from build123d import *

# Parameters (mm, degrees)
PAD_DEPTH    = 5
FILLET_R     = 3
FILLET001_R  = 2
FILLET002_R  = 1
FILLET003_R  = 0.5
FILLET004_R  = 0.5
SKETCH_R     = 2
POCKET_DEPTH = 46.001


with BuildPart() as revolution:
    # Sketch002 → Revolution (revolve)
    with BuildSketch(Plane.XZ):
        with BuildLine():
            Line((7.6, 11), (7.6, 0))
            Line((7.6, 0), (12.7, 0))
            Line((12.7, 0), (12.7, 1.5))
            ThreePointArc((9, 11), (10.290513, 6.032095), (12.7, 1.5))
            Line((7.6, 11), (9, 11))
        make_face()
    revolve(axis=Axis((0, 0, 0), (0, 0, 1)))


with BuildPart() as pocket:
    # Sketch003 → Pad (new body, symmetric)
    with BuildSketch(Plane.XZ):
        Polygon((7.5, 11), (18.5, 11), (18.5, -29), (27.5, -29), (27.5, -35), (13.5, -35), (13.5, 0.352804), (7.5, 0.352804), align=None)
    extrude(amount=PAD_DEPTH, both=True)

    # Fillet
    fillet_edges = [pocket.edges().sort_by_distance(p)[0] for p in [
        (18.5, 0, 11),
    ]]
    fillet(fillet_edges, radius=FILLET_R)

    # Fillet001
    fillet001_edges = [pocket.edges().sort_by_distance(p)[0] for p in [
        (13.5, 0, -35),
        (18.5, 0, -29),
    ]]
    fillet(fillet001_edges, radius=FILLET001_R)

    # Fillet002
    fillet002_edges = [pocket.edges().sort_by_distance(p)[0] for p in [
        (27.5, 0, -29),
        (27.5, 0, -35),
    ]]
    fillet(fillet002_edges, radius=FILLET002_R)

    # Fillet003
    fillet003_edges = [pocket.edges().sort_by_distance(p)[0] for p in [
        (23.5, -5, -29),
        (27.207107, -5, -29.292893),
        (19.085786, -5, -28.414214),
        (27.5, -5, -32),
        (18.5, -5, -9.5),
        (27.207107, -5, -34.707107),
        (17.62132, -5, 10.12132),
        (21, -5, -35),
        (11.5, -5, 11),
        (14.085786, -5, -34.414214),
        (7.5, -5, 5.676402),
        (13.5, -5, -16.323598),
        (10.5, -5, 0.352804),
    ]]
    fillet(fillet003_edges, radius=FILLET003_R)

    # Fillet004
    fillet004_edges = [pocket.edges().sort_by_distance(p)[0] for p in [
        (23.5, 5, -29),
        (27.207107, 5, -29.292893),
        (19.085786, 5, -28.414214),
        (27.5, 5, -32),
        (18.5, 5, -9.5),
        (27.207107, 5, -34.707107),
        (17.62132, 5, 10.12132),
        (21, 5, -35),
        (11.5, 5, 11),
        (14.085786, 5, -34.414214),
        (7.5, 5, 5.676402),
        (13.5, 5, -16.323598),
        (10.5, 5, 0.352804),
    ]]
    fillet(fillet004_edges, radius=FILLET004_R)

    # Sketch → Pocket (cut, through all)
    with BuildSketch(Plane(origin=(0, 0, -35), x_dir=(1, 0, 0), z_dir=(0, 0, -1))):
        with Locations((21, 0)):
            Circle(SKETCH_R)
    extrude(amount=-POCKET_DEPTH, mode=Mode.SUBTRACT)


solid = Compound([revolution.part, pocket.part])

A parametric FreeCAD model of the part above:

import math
import FreeCAD as App
import Part
import Sketcher

V = App.Vector
Q = App.Units.Quantity


def edges_at(feature, points):
    """Names of the edges that pass closest to the given points."""
    edges = feature.Shape.Edges
    near = lambda p: min(range(len(edges)), key=lambda i: edges[i].distToShape(Part.Vertex(*p))[0])
    return sorted({f"Edge{near(p) + 1}" for p in points})

doc = App.newDocument("Part")
body = doc.addObject("PartDesign::Body", "Body")

sketch1 = body.newObject("Sketcher::SketchObject", "Sketch")
sketch1.AttachmentSupport = (doc.getObject("XZ_Plane"), [""])
sketch1.MapMode = "FlatFace"
sketch1.addGeometry(Part.LineSegment(V(7.6, 11, 0), V(7.6, 0, 0)), False)
sketch1.addGeometry(Part.LineSegment(V(7.6, 0, 0), V(12.7, 0, 0)), False)
sketch1.addGeometry(Part.LineSegment(V(12.7, 0, 0), V(12.7, 1.5, 0)), False)
sketch1.addGeometry(Part.ArcOfCircle(Part.Circle(V(30.733823, 13.994226, 0), V(0, 0, 1), 21.939108), math.radians(-172.155853), math.radians(-145.284939)), False)
sketch1.addGeometry(Part.LineSegment(V(9, 11, 0), V(7.6, 11, 0)), False)
sketch1.addConstraint(Sketcher.Constraint("Coincident", 0, 2, 1, 1))
sketch1.addConstraint(Sketcher.Constraint("Coincident", 1, 2, 2, 1))
sketch1.addConstraint(Sketcher.Constraint("Coincident", 2, 2, 3, 2))
sketch1.addConstraint(Sketcher.Constraint("Coincident", 3, 1, 4, 1))
sketch1.addConstraint(Sketcher.Constraint("Coincident", 4, 2, 0, 1))
sketch1.addConstraint(Sketcher.Constraint("Vertical", 0))
sketch1.addConstraint(Sketcher.Constraint("Horizontal", 1))
sketch1.addConstraint(Sketcher.Constraint("Vertical", 2))
sketch1.addConstraint(Sketcher.Constraint("Horizontal", 4))
sketch1.addConstraint(Sketcher.Constraint("PointOnObject", 0, 2, -1))
sketch1.addConstraint(Sketcher.Constraint("DistanceY", 0, 2, 0, 1, Q("11 mm")))
sketch1.addConstraint(Sketcher.Constraint("DistanceX", 1, 1, 1, 2, Q("5.1 mm")))
sketch1.addConstraint(Sketcher.Constraint("DistanceX", 4, 2, 4, 1, Q("1.4 mm")))
sketch1.addConstraint(Sketcher.Constraint("DistanceY", 2, 1, 2, 2, Q("1.5 mm")))
sketch1.addConstraint(Sketcher.Constraint("DistanceX", -1, 1, 3, 1, Q("9 mm")))
sketch1.addConstraint(Sketcher.Constraint("Radius", 3, Q("21.939108 mm")))
revolution = body.newObject("PartDesign::Revolution", "Revolution")
revolution.Profile = sketch1
revolution.ReferenceAxis = (sketch1, ["V_Axis"])
revolution.Angle = 360
body2 = doc.addObject("PartDesign::Body", "Body001")

sketch2 = body2.newObject("Sketcher::SketchObject", "Sketch001")
sketch2.AttachmentSupport = (doc.getObject("XZ_Plane001"), [""])
sketch2.MapMode = "FlatFace"
sketch2.addGeometry(Part.LineSegment(V(18.5, 11, 0), V(7.5, 11, 0)), False)
sketch2.addGeometry(Part.LineSegment(V(7.5, 11, 0), V(7.5, 0.352804, 0)), False)
sketch2.addGeometry(Part.LineSegment(V(7.5, 0.352804, 0), V(13.5, 0.352804, 0)), False)
sketch2.addGeometry(Part.LineSegment(V(13.5, 0.352804, 0), V(13.5, -35, 0)), False)
sketch2.addGeometry(Part.LineSegment(V(13.5, -35, 0), V(27.5, -35, 0)), False)
sketch2.addGeometry(Part.LineSegment(V(27.5, -35, 0), V(27.5, -29, 0)), False)
sketch2.addGeometry(Part.LineSegment(V(27.5, -29, 0), V(18.5, -29, 0)), False)
sketch2.addGeometry(Part.LineSegment(V(18.5, -29, 0), V(18.5, 11, 0)), False)
sketch2.addConstraint(Sketcher.Constraint("Coincident", 0, 2, 1, 1))
sketch2.addConstraint(Sketcher.Constraint("Coincident", 1, 2, 2, 1))
sketch2.addConstraint(Sketcher.Constraint("Coincident", 2, 2, 3, 1))
sketch2.addConstraint(Sketcher.Constraint("Coincident", 3, 2, 4, 1))
sketch2.addConstraint(Sketcher.Constraint("Coincident", 4, 2, 5, 1))
sketch2.addConstraint(Sketcher.Constraint("Coincident", 5, 2, 6, 1))
sketch2.addConstraint(Sketcher.Constraint("Coincident", 6, 2, 7, 1))
sketch2.addConstraint(Sketcher.Constraint("Coincident", 7, 2, 0, 1))
sketch2.addConstraint(Sketcher.Constraint("Horizontal", 0))
sketch2.addConstraint(Sketcher.Constraint("Vertical", 1))
sketch2.addConstraint(Sketcher.Constraint("Horizontal", 2))
sketch2.addConstraint(Sketcher.Constraint("Vertical", 3))
sketch2.addConstraint(Sketcher.Constraint("Horizontal", 4))
sketch2.addConstraint(Sketcher.Constraint("Vertical", 5))
sketch2.addConstraint(Sketcher.Constraint("Horizontal", 6))
sketch2.addConstraint(Sketcher.Constraint("Vertical", 7))
sketch2.addConstraint(Sketcher.Constraint("Equal", 2, 5))
sketch2.addConstraint(Sketcher.Constraint("DistanceX", 0, 2, 0, 1, Q("11 mm")))
sketch2.addConstraint(Sketcher.Constraint("DistanceX", 2, 1, 2, 2, Q("6 mm")))
sketch2.addConstraint(Sketcher.Constraint("DistanceX", 4, 1, 4, 2, Q("14 mm")))
sketch2.addConstraint(Sketcher.Constraint("DistanceY", 7, 1, 7, 2, Q("40 mm")))
sketch2.addConstraint(Sketcher.Constraint("DistanceY", -1, 1, 0, 2, Q("11 mm")))
sketch2.addConstraint(Sketcher.Constraint("DistanceX", -1, 1, 0, 2, Q("7.5 mm")))
sketch2.addConstraint(Sketcher.Constraint("DistanceY", 1, 2, 1, 1, Q("10.647196 mm")))
pad1 = body2.newObject("PartDesign::Pad", "Pad")
pad1.Profile = sketch2
pad1.Length = 10
pad1.Midplane = True
doc.recompute()

fillet = body2.newObject("PartDesign::Fillet", "Fillet")
fillet.Base = (pad1, edges_at(pad1, [(18.5, 0, 11)]))
fillet.Radius = 3
doc.recompute()

fillet2 = body2.newObject("PartDesign::Fillet", "Fillet001")
fillet2.Base = (fillet, edges_at(fillet, [(13.5, 0, -35), (18.5, 0, -29)]))
fillet2.Radius = 2
doc.recompute()

fillet3 = body2.newObject("PartDesign::Fillet", "Fillet002")
fillet3.Base = (fillet2, edges_at(fillet2, [(27.5, 0, -29), (27.5, 0, -35)]))
fillet3.Radius = 1
doc.recompute()

fillet4 = body2.newObject("PartDesign::Fillet", "Fillet003")
fillet4.Base = (fillet3, edges_at(fillet3, [
    (23.5, -5, -29),
    (27.207, -5, -29.293),
    (19.086, -5, -28.414),
    (27.5, -5, -32),
    (18.5, -5, -9.5),
    (27.207, -5, -34.707),
    (17.621, -5, 10.121),
    (21, -5, -35),
    (11.5, -5, 11),
    (14.086, -5, -34.414),
    (7.5, -5, 5.676),
    (13.5, -5, -16.324),
    (10.5, -5, 0.353),
]))
fillet4.Radius = 0.5
doc.recompute()

fillet5 = body2.newObject("PartDesign::Fillet", "Fillet004")
fillet5.Base = (fillet4, edges_at(fillet4, [
    (23.5, 5, -29),
    (27.207, 5, -29.293),
    (19.086, 5, -28.414),
    (27.5, 5, -32),
    (18.5, 5, -9.5),
    (27.207, 5, -34.707),
    (17.621, 5, 10.121),
    (21, 5, -35),
    (11.5, 5, 11),
    (14.086, 5, -34.414),
    (7.5, 5, 5.676),
    (13.5, 5, -16.324),
    (10.5, 5, 0.353),
]))
fillet5.Radius = 0.5

sketch3 = body2.newObject("Sketcher::SketchObject", "Sketch002")
sketch3.AttachmentSupport = (doc.getObject("XY_Plane001"), [""])
sketch3.MapMode = "FlatFace"
sketch3.AttachmentOffset = App.Placement(V(0, 0, -35), App.Rotation())
sketch3.addGeometry(Part.Circle(V(21, 0, 0), V(0, 0, 1), 2), False)
sketch3.addConstraint(Sketcher.Constraint("PointOnObject", 0, 3, -1))
sketch3.addConstraint(Sketcher.Constraint("Diameter", 0, Q("4 mm")))
sketch3.addConstraint(Sketcher.Constraint("DistanceX", -1, 1, 0, 3, Q("21 mm")))
pocket1 = body2.newObject("PartDesign::Pocket", "Pocket")
pocket1.Profile = sketch3
pocket1.Type = "ThroughAll"
pocket1.Reversed = True

doc.recompute()
